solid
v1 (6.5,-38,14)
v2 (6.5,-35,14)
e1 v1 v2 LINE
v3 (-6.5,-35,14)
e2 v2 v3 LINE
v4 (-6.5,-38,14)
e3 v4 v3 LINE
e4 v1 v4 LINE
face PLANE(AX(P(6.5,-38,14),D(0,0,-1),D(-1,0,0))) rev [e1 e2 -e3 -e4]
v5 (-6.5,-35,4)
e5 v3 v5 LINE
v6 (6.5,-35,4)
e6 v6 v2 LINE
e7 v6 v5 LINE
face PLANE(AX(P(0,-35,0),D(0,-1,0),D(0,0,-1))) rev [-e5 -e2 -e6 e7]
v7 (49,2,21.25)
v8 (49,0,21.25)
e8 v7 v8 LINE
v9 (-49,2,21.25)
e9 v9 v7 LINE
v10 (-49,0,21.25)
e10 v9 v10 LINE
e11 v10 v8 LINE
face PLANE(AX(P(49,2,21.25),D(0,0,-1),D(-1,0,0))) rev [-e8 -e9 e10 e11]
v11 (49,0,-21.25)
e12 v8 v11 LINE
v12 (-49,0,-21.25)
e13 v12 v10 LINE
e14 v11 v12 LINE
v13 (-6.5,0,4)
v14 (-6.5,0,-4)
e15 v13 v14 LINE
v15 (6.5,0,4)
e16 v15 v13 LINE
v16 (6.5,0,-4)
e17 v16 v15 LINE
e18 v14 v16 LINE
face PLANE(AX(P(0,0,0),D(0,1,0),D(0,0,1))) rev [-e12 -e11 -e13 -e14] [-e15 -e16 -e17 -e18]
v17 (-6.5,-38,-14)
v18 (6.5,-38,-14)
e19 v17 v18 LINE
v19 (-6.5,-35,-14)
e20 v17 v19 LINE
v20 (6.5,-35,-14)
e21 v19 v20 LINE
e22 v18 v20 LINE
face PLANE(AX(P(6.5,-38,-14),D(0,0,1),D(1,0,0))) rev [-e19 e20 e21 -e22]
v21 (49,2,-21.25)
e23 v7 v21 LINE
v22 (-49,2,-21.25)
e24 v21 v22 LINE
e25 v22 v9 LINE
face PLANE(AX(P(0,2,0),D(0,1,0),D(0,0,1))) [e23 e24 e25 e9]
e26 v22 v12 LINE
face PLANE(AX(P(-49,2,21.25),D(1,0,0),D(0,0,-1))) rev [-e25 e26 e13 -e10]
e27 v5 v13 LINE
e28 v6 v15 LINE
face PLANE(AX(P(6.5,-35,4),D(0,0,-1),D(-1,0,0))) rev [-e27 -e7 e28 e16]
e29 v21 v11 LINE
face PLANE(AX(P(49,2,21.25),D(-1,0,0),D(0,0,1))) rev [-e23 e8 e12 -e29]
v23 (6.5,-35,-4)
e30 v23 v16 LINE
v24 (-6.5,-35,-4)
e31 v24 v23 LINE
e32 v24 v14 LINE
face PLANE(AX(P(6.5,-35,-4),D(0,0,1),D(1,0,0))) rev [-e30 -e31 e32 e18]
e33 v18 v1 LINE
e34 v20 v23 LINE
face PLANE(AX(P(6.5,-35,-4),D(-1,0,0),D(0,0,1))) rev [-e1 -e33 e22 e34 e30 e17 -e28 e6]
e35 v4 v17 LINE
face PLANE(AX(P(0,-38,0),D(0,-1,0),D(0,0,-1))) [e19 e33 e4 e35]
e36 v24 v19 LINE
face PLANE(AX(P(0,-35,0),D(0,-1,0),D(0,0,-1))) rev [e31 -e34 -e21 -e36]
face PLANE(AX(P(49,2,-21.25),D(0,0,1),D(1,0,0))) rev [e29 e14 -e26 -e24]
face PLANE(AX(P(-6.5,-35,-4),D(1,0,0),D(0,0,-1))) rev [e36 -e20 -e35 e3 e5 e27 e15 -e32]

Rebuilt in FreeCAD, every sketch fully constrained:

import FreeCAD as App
import Part
import Sketcher

V = App.Vector
Q = App.Units.Quantity


def add_polygon(sketch, points):
    """Adds a closed chain of lines whose ends are joined by coincident constraints."""
    first, n = sketch.GeometryCount, len(points)
    for a, b in zip(points, points[1:] + points[:1]):
        sketch.addGeometry(Part.LineSegment(App.Vector(*a, 0), App.Vector(*b, 0)), False)
    for i in range(n):
        sketch.addConstraint(Sketcher.Constraint("Coincident", first + i, 2, first + (i + 1) % n, 1))

doc = App.newDocument("Part")
params = doc.addObject("Spreadsheet::Sheet", "Params")
for row, (alias, value) in enumerate([
    ("sketch1_width", "98 mm"),
    ("sketch1_height", "42.5 mm"),
    ("pad1_length", "2 mm"),
    ("sketch2_width", "13 mm"),
    ("sketch2_height", "8 mm"),
    ("pad2_length", "35 mm"),
    ("sketch3_width", "13 mm"),
    ("sketch3_height", "28 mm"),
    ("pad3_length", "3 mm"),
], start=1):
    params.set(f"A{row}", alias)
    params.set(f"B{row}", "=" + value)
    params.setAlias(f"B{row}", alias)

body = doc.addObject("PartDesign::Body", "Body")

sketch1 = body.newObject("Sketcher::SketchObject", "Sketch")
sketch1.AttachmentSupport = (doc.getObject("XZ_Plane"), [""])
sketch1.MapMode = "FlatFace"
add_polygon(sketch1, [(-49, -21), (-49, 21), (49, 21), (49, -21)])
sketch1.addConstraint([
    Sketcher.Constraint("Vertical", 0),
    Sketcher.Constraint("Horizontal", 1),
    Sketcher.Constraint("Vertical", 2),
    Sketcher.Constraint("Horizontal", 3),
    Sketcher.Constraint("Symmetric", 0, 2, 2, 2, -1, 1),
    Sketcher.Constraint("DistanceX", 1, 1, 1, 2, Q("98 mm")),
    Sketcher.Constraint("DistanceY", 0, 1, 0, 2, Q("42.5 mm")),
])
sketch1.setExpression("Constraints[9]", "Params.sketch1_width")
sketch1.setExpression("Constraints[10]", "Params.sketch1_height")
pad1 = body.newObject("PartDesign::Pad", "Pad")
pad1.Profile = sketch1
pad1.setExpression("Length", "Params.pad1_length")
pad1.Reversed = True

sketch2 = body.newObject("Sketcher::SketchObject", "Sketch001")
sketch2.AttachmentSupport = (doc.getObject("XZ_Plane"), [""])
sketch2.MapMode = "FlatFace"
add_polygon(sketch2, [(-6, 4), (-6, -4), (6, -4), (6, 4)])
sketch2.addConstraint([
    Sketcher.Constraint("Vertical", 0),
    Sketcher.Constraint("Horizontal", 1),
    Sketcher.Constraint("Vertical", 2),
    Sketcher.Constraint("Horizontal", 3),
    Sketcher.Constraint("Symmetric", 0, 2, 2, 2, -1, 1),
    Sketcher.Constraint("DistanceX", 1, 1, 1, 2, Q("13 mm")),
    Sketcher.Constraint("DistanceY", 0, 2, 0, 1, Q("8 mm")),
])
sketch2.setExpression("Constraints[9]", "Params.sketch2_width")
sketch2.setExpression("Constraints[10]", "Params.sketch2_height")
pad2 = body.newObject("PartDesign::Pad", "Pad001")
pad2.Profile = sketch2
pad2.setExpression("Length", "Params.pad2_length")

sketch3 = body.newObject("Sketcher::SketchObject", "Sketch002")
sketch3.AttachmentSupport = (doc.getObject("XZ_Plane"), [""])
sketch3.MapMode = "FlatFace"
sketch3.AttachmentOffset = App.Placement(V(0, 0, 35), App.Rotation())
add_polygon(sketch3, [(-6, 14), (-6, -14), (6, -14), (6, 14)])
sketch3.addConstraint([
    Sketcher.Constraint("Vertical", 0),
    Sketcher.Constraint("Horizontal", 1),
    Sketcher.Constraint("Vertical", 2),
    Sketcher.Constraint("Horizontal", 3),
    Sketcher.Constraint("Symmetric", 0, 2, 2, 2, -1, 1),
    Sketcher.Constraint("DistanceX", 1, 1, 1, 2, Q("13 mm")),
    Sketcher.Constraint("DistanceY", 0, 2, 0, 1, Q("28 mm")),
])
sketch3.setExpression("Constraints[9]", "Params.sketch3_width")
sketch3.setExpression("Constraints[10]", "Params.sketch3_height")
pad3 = body.newObject("PartDesign::Pad", "Pad002")
pad3.Profile = sketch3
pad3.setExpression("Length", "Params.pad3_length")

doc.recompute()
